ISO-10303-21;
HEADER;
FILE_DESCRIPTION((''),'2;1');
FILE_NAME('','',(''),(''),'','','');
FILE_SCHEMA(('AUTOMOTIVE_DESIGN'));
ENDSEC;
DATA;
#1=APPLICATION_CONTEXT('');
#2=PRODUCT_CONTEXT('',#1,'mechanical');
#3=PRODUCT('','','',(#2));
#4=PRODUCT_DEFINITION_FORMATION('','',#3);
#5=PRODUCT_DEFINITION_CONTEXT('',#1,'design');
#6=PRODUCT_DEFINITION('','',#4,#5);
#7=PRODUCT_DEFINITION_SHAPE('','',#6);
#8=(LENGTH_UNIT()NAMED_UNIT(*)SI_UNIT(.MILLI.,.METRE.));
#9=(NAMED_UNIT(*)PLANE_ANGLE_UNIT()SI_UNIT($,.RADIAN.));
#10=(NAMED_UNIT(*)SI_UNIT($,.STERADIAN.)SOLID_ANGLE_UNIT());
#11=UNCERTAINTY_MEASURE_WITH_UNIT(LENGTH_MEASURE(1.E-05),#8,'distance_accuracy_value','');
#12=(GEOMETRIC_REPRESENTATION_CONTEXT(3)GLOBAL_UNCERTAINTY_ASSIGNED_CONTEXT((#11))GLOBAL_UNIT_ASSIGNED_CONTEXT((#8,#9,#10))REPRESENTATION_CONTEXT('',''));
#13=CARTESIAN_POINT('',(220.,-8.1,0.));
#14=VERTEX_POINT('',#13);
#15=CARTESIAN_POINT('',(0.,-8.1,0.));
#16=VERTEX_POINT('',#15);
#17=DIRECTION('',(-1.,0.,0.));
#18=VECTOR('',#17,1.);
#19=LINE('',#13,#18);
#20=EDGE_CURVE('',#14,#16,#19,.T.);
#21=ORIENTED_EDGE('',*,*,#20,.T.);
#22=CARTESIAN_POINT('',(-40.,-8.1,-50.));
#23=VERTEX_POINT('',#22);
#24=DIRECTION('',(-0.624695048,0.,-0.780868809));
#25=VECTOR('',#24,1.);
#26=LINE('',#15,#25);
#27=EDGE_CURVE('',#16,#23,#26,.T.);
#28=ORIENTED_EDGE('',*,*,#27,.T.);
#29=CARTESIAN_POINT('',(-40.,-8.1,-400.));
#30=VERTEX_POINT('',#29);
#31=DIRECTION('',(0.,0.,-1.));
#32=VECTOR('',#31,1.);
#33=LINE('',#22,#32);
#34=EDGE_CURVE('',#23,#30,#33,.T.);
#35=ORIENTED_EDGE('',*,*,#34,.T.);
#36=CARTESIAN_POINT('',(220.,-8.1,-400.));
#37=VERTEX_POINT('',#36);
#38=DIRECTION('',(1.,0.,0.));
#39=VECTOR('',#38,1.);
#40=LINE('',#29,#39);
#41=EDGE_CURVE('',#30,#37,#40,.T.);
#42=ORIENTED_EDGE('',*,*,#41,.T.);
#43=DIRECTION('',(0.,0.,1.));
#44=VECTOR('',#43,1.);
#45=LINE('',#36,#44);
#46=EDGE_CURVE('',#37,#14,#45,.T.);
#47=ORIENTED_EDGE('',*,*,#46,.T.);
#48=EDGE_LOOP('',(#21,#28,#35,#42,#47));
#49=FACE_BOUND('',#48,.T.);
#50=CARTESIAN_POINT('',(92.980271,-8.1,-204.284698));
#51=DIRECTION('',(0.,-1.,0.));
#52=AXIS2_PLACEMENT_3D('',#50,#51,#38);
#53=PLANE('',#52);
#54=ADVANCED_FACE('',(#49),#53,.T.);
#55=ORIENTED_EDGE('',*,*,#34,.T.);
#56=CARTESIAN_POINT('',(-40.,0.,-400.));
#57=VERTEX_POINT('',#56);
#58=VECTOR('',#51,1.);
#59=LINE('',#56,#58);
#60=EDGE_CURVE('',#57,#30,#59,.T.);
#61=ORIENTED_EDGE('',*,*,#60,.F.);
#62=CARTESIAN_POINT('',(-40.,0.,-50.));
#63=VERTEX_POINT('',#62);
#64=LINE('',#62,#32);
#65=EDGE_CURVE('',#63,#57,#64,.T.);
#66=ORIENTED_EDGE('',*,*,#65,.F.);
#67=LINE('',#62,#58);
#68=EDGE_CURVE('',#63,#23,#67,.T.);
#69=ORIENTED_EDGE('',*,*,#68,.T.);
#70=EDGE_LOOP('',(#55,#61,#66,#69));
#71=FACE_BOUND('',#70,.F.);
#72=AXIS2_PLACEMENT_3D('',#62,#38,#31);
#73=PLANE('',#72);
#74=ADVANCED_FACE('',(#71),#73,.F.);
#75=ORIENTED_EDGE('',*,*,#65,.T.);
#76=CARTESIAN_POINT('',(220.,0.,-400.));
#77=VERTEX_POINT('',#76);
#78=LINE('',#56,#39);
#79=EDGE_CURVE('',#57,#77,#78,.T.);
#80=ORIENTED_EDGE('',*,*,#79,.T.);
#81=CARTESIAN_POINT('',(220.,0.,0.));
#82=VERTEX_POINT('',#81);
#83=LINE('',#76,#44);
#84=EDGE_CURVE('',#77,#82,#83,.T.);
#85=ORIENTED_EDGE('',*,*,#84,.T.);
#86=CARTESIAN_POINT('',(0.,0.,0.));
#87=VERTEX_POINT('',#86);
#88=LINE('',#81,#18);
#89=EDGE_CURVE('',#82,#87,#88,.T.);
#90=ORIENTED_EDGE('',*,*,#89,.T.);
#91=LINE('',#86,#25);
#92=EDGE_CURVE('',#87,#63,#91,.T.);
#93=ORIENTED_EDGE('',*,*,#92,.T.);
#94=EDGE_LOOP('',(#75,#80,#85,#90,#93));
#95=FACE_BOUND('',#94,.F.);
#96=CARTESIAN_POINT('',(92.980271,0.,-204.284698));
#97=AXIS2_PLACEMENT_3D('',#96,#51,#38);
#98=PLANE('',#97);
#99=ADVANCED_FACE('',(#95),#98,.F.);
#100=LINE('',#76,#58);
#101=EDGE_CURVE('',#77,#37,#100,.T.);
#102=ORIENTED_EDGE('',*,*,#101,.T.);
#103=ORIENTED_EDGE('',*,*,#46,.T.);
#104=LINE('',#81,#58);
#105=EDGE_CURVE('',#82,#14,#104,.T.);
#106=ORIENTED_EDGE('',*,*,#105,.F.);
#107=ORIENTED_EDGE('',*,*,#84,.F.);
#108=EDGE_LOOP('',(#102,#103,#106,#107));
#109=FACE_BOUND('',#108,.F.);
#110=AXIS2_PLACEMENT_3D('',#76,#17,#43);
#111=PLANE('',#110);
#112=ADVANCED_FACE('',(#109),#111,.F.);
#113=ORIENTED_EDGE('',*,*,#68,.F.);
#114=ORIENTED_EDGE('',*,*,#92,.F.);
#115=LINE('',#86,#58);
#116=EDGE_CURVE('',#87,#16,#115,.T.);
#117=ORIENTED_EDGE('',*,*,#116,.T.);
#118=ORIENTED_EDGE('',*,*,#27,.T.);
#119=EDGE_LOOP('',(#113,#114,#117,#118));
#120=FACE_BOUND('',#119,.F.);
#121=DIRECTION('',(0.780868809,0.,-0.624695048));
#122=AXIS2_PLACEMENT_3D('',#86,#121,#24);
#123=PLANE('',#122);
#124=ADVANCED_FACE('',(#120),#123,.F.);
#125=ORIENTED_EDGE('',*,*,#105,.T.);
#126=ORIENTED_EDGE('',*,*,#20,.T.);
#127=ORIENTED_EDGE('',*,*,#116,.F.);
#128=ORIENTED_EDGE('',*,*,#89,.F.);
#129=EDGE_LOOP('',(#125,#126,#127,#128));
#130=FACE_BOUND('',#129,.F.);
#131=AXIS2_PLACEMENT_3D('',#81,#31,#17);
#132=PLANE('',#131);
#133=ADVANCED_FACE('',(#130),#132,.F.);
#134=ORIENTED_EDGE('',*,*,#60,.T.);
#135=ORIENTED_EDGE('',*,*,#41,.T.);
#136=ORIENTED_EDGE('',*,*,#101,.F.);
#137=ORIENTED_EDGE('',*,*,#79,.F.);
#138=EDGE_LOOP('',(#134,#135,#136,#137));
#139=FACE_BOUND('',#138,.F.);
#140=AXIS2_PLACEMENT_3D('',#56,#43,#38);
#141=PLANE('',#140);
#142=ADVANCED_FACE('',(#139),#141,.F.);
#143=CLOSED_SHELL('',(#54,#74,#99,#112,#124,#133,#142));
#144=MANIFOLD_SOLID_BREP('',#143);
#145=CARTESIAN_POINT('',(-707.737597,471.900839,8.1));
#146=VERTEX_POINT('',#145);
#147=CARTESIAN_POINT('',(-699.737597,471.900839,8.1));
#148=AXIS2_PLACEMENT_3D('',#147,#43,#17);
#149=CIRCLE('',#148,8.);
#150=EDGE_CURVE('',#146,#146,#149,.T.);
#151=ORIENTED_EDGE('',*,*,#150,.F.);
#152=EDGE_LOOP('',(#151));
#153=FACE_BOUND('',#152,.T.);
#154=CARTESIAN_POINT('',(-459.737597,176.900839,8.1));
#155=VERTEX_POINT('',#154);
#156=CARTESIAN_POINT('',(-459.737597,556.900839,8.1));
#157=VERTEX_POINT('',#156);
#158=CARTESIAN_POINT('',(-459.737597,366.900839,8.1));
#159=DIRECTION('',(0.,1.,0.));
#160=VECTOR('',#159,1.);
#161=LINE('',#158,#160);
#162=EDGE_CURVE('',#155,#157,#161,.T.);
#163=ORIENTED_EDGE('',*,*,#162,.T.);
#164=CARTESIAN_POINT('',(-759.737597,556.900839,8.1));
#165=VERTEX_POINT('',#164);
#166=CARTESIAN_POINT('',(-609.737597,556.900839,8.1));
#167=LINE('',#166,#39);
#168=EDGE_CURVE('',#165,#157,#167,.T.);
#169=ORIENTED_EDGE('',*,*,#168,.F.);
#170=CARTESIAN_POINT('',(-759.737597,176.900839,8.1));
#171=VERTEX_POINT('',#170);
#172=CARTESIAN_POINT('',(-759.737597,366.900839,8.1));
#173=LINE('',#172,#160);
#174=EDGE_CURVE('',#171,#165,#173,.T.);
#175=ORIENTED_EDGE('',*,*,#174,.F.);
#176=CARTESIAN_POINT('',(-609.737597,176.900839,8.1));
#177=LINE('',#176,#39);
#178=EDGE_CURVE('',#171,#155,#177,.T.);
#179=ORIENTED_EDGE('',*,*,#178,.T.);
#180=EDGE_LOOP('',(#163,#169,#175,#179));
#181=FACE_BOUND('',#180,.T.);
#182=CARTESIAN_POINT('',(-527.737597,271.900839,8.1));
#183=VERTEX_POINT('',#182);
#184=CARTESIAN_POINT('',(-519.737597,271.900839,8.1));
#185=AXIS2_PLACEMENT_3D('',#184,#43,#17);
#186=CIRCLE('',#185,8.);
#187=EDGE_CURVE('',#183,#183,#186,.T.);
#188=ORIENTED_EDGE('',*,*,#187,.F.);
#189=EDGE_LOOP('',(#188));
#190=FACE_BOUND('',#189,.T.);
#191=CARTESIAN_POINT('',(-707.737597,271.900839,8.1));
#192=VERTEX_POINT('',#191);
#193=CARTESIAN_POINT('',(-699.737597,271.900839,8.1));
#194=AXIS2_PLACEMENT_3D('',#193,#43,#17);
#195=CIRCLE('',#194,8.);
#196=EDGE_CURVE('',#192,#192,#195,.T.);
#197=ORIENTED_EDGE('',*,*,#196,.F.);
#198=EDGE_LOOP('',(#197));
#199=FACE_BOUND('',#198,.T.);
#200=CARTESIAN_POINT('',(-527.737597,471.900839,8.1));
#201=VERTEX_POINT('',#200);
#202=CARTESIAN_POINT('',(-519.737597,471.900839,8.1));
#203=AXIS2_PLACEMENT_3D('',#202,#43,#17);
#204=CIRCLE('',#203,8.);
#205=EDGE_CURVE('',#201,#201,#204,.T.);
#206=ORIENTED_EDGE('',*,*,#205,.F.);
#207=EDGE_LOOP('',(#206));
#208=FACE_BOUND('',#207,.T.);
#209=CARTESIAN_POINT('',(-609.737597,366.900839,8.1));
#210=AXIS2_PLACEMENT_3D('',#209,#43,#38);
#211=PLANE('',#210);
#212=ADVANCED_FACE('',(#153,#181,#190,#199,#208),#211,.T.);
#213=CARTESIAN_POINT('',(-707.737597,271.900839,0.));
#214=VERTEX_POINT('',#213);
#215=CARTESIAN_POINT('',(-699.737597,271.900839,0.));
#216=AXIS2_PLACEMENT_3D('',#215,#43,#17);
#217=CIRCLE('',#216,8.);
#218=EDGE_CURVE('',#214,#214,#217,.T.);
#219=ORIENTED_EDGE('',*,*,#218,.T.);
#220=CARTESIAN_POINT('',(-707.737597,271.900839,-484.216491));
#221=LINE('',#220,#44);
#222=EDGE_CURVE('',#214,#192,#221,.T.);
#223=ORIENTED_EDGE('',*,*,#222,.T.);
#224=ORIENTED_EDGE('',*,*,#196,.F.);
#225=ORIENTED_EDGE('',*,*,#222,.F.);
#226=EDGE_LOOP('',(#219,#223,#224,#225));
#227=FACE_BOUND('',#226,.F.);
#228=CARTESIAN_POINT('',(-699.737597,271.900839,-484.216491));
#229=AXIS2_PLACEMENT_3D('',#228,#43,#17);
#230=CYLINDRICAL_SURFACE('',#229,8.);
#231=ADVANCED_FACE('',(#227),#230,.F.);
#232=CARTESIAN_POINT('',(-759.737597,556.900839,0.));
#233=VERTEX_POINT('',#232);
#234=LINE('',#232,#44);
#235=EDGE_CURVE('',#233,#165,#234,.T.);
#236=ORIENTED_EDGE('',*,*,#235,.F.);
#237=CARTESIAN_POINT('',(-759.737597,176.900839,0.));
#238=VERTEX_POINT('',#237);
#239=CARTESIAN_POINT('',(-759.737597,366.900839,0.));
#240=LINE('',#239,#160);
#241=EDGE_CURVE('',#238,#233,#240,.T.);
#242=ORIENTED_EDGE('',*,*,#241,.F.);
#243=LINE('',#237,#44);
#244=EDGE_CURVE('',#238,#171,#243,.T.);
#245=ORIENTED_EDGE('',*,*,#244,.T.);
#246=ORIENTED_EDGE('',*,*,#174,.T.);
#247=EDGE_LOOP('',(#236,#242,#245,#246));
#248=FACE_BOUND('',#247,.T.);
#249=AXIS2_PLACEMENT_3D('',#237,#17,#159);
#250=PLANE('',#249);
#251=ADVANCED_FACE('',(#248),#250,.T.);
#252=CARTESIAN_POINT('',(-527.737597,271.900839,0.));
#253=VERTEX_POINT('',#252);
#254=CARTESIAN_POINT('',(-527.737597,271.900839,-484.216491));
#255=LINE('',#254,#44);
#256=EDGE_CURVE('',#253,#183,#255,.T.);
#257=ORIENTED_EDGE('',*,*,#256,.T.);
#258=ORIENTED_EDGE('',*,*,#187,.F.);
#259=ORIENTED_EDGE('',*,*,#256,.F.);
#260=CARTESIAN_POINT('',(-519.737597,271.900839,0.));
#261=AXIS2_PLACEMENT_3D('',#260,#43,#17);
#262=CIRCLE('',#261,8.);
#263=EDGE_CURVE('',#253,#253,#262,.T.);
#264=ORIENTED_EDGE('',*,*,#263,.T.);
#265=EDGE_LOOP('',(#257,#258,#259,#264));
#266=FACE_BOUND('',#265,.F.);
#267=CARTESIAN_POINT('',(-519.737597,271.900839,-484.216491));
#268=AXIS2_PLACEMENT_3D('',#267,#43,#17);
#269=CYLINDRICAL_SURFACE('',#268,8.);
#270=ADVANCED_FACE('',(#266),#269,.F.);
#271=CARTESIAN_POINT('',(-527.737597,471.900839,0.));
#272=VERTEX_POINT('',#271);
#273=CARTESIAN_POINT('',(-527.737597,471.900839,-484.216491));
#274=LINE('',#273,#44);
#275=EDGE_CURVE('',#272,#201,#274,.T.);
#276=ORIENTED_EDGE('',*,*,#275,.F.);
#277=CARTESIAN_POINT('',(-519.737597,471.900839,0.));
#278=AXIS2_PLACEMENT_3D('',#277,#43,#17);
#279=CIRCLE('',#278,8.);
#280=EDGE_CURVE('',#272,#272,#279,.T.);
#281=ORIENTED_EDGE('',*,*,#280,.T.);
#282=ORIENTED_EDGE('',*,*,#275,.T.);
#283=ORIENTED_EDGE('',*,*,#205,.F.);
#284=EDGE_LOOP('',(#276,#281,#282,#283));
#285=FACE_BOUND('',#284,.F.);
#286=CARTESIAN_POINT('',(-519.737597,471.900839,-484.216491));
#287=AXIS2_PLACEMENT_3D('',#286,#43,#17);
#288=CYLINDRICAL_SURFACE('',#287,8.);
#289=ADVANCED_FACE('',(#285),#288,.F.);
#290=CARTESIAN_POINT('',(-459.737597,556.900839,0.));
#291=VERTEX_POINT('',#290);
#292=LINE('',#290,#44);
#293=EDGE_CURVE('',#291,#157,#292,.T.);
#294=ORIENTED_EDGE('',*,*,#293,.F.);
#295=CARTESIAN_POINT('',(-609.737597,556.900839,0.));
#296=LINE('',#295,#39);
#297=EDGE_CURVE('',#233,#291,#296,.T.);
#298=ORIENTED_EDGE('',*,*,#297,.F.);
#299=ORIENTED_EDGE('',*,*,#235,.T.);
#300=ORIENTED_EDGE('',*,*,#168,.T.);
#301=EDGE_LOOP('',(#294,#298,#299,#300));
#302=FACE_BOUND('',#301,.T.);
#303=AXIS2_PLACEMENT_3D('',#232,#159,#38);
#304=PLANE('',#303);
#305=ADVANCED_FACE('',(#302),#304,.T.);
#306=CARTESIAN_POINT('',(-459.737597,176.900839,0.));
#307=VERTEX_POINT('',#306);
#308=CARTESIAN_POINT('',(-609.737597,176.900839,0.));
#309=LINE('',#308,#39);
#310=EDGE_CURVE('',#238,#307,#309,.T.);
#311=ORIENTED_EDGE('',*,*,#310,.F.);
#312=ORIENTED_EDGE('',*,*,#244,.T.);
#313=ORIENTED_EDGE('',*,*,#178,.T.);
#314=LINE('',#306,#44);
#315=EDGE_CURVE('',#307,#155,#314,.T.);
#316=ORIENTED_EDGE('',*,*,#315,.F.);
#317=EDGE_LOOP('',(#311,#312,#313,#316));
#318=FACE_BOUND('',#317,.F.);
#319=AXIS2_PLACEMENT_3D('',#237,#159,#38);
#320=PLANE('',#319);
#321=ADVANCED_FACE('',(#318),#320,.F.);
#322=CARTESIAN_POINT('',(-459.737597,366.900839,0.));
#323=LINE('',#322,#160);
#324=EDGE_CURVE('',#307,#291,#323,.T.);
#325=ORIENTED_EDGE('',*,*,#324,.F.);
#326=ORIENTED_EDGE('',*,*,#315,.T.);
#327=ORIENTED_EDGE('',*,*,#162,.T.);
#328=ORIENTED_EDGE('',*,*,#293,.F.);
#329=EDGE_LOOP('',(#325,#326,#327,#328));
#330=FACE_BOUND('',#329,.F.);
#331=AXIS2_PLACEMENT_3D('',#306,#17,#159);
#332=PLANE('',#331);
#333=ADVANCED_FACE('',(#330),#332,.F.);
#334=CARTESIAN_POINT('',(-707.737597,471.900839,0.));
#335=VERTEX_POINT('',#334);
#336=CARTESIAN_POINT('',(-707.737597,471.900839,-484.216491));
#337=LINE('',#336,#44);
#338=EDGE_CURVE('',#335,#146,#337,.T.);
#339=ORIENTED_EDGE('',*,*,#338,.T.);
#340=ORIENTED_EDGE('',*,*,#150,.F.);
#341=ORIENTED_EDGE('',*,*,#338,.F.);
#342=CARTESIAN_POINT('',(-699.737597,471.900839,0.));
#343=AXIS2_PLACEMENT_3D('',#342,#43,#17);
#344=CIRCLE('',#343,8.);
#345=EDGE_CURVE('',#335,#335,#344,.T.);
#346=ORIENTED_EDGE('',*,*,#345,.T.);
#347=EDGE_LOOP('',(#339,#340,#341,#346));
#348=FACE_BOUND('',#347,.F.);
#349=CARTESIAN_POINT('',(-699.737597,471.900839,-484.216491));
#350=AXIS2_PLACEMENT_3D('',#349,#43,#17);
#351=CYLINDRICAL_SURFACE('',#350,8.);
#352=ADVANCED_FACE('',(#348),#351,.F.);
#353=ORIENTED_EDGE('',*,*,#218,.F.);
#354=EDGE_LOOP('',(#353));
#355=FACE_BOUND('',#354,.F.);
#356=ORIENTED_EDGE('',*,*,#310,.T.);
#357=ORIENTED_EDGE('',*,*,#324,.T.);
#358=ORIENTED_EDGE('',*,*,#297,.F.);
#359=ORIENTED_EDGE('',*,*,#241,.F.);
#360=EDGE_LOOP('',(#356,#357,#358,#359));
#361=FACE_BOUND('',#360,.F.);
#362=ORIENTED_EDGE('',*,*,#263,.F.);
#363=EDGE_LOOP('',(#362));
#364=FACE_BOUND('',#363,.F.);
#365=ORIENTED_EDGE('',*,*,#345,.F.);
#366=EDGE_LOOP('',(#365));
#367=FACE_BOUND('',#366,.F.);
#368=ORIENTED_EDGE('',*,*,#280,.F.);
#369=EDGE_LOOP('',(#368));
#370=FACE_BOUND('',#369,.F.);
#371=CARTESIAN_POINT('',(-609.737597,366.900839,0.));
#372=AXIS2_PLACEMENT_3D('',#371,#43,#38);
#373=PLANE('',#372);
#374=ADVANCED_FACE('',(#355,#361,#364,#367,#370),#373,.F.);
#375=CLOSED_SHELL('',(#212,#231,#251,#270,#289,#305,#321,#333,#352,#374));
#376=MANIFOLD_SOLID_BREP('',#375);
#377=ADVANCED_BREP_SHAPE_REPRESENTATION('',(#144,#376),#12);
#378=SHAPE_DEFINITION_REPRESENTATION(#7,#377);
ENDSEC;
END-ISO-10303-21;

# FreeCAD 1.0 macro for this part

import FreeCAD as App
import Part
import Sketcher

V = App.Vector


def add_polygon(sketch, points):
    """Adds a closed chain of lines whose ends are joined by coincident constraints."""
    first, n = sketch.GeometryCount, len(points)
    for a, b in zip(points, points[1:] + points[:1]):
        sketch.addGeometry(Part.LineSegment(App.Vector(*a, 0), App.Vector(*b, 0)), False)
    for i in range(n):
        sketch.addConstraint(Sketcher.Constraint("Coincident", first + i, 2, first + (i + 1) % n, 1))

doc = App.newDocument("Part")
params = doc.addObject("Spreadsheet::Sheet", "Params")
for row, (alias, value) in enumerate([
    ("sketch1_width", "220 mm"),
    ("sketch1_width2", "260 mm"),
    ("sketch1_height", "350 mm"),
    ("sketch1_height2", "400 mm"),
    ("pad1_length", "8.1 mm"),
    ("sketch2_width", "300 mm"),
    ("sketch2_height", "380 mm"),
    ("pad2_length", "8.1 mm"),
    ("sketch3_diameter", "16 mm"),
    ("hole_diameter", "16 mm"),
], start=1):
    params.set(f"A{row}", alias)
    params.set(f"B{row}", "=" + value)
    params.setAlias(f"B{row}", alias)

body = doc.addObject("PartDesign::Body", "Body")

# Sketch on XZ plane
sketch1 = body.newObject("Sketcher::SketchObject", "Sketch")
sketch1.AttachmentSupport = (doc.getObject("XZ_Plane"), [""])
sketch1.MapMode = "FlatFace"
add_polygon(sketch1, [(220, 0), (0, 0), (-40, -50), (-40, -400), (220, -400)])  # lines 0-4
sketch1.addConstraint([
    Sketcher.Constraint("Horizontal", 0),
    Sketcher.Constraint("Vertical", 2),
    Sketcher.Constraint("Horizontal", 3),
    Sketcher.Constraint("Vertical", 4),
    Sketcher.Constraint("Coincident", 0, 2, -1, 1),
    Sketcher.Constraint("DistanceX", 0, 2, 0, 1, 220.0),
    Sketcher.Constraint("DistanceX", 3, 1, 3, 2, 260.0),
    Sketcher.Constraint("DistanceY", 2, 2, 2, 1, 350.0),
    Sketcher.Constraint("DistanceY", 4, 1, 4, 2, 400.0),
])
sketch1.setExpression("Constraints[10]", "Params.sketch1_width")
sketch1.setExpression("Constraints[11]", "Params.sketch1_width2")
sketch1.setExpression("Constraints[12]", "Params.sketch1_height")
sketch1.setExpression("Constraints[13]", "Params.sketch1_height2")
pad1 = body.newObject("PartDesign::Pad", "Pad")
pad1.Profile = sketch1
pad1.setExpression("Length", "Params.pad1_length")
body2 = doc.addObject("PartDesign::Body", "Body001")

# Sketch on XY plane
sketch2 = body2.newObject("Sketcher::SketchObject", "Sketch001")
sketch2.AttachmentSupport = (doc.getObject("XY_Plane001"), [""])
sketch2.MapMode = "FlatFace"
add_polygon(sketch2, [(-759.737597, 556.900839), (-759.737597, 176.900839), (-459.737597, 176.900839), (-459.737597, 556.900839)])  # lines 0-3
sketch2.addConstraint([
    Sketcher.Constraint("Vertical", 0),
    Sketcher.Constraint("Horizontal", 1),
    Sketcher.Constraint("Vertical", 2),
    Sketcher.Constraint("Horizontal", 3),
    Sketcher.Constraint("DistanceX", 1, 1, 1, 2, 300.0),
    Sketcher.Constraint("DistanceY", 0, 2, 0, 1, 380.0),
    Sketcher.Constraint("DistanceY", -1, 1, 0, 2, 176.900839),
    Sketcher.Constraint("DistanceX", 0, 2, -1, 1, 759.737597),
])
sketch2.setExpression("Constraints[8]", "Params.sketch2_width")
sketch2.setExpression("Constraints[9]", "Params.sketch2_height")
pad2 = body2.newObject("PartDesign::Pad", "Pad001")
pad2.Profile = sketch2
pad2.setExpression("Length", "Params.pad2_length")

# Sketch on XY plane
sketch3 = body2.newObject("Sketcher::SketchObject", "Sketch002")
sketch3.AttachmentSupport = (doc.getObject("XY_Plane001"), [""])
sketch3.MapMode = "FlatFace"
sketch3.addGeometry([
    Part.Circle(V(-519.737597, 471.900839, 0), V(0, 0, 1), 8),
    Part.Circle(V(-699.737597, 471.900839, 0), V(0, 0, 1), 8),
    Part.Circle(V(-699.737597, 271.900839, 0), V(0, 0, 1), 8),
    Part.Circle(V(-519.737597, 271.900839, 0), V(0, 0, 1), 8),
], False)
sketch3.addConstraint([
    Sketcher.Constraint("Equal", 0, 1),
    Sketcher.Constraint("Equal", 1, 2),
    Sketcher.Constraint("Equal", 2, 3),
    Sketcher.Constraint("Horizontal", 0, 3, 1, 3),
    Sketcher.Constraint("Horizontal", 2, 3, 3, 3),
    Sketcher.Constraint("Vertical", 1, 3, 2, 3),
    Sketcher.Constraint("Vertical", 0, 3, 3, 3),
    Sketcher.Constraint("Diameter", 0, 16.0),
    Sketcher.Constraint("DistanceX", 1, 3, 0, 3, 180.0),
    Sketcher.Constraint("DistanceY", 2, 3, 1, 3, 200.0),
    Sketcher.Constraint("DistanceY", -1, 1, 0, 3, 471.900839),
    Sketcher.Constraint("DistanceX", 0, 3, -1, 1, 519.737597),
])
sketch3.setExpression("Constraints[7]", "Params.sketch3_diameter")
doc.recompute()
hole = body2.newObject("PartDesign::Hole", "Hole")
hole.Profile = sketch3
hole.ThreadType = "None"
hole.setExpression("Diameter", "Params.hole_diameter")
hole.DepthType = "ThroughAll"
hole.Reversed = True

doc.recompute()
